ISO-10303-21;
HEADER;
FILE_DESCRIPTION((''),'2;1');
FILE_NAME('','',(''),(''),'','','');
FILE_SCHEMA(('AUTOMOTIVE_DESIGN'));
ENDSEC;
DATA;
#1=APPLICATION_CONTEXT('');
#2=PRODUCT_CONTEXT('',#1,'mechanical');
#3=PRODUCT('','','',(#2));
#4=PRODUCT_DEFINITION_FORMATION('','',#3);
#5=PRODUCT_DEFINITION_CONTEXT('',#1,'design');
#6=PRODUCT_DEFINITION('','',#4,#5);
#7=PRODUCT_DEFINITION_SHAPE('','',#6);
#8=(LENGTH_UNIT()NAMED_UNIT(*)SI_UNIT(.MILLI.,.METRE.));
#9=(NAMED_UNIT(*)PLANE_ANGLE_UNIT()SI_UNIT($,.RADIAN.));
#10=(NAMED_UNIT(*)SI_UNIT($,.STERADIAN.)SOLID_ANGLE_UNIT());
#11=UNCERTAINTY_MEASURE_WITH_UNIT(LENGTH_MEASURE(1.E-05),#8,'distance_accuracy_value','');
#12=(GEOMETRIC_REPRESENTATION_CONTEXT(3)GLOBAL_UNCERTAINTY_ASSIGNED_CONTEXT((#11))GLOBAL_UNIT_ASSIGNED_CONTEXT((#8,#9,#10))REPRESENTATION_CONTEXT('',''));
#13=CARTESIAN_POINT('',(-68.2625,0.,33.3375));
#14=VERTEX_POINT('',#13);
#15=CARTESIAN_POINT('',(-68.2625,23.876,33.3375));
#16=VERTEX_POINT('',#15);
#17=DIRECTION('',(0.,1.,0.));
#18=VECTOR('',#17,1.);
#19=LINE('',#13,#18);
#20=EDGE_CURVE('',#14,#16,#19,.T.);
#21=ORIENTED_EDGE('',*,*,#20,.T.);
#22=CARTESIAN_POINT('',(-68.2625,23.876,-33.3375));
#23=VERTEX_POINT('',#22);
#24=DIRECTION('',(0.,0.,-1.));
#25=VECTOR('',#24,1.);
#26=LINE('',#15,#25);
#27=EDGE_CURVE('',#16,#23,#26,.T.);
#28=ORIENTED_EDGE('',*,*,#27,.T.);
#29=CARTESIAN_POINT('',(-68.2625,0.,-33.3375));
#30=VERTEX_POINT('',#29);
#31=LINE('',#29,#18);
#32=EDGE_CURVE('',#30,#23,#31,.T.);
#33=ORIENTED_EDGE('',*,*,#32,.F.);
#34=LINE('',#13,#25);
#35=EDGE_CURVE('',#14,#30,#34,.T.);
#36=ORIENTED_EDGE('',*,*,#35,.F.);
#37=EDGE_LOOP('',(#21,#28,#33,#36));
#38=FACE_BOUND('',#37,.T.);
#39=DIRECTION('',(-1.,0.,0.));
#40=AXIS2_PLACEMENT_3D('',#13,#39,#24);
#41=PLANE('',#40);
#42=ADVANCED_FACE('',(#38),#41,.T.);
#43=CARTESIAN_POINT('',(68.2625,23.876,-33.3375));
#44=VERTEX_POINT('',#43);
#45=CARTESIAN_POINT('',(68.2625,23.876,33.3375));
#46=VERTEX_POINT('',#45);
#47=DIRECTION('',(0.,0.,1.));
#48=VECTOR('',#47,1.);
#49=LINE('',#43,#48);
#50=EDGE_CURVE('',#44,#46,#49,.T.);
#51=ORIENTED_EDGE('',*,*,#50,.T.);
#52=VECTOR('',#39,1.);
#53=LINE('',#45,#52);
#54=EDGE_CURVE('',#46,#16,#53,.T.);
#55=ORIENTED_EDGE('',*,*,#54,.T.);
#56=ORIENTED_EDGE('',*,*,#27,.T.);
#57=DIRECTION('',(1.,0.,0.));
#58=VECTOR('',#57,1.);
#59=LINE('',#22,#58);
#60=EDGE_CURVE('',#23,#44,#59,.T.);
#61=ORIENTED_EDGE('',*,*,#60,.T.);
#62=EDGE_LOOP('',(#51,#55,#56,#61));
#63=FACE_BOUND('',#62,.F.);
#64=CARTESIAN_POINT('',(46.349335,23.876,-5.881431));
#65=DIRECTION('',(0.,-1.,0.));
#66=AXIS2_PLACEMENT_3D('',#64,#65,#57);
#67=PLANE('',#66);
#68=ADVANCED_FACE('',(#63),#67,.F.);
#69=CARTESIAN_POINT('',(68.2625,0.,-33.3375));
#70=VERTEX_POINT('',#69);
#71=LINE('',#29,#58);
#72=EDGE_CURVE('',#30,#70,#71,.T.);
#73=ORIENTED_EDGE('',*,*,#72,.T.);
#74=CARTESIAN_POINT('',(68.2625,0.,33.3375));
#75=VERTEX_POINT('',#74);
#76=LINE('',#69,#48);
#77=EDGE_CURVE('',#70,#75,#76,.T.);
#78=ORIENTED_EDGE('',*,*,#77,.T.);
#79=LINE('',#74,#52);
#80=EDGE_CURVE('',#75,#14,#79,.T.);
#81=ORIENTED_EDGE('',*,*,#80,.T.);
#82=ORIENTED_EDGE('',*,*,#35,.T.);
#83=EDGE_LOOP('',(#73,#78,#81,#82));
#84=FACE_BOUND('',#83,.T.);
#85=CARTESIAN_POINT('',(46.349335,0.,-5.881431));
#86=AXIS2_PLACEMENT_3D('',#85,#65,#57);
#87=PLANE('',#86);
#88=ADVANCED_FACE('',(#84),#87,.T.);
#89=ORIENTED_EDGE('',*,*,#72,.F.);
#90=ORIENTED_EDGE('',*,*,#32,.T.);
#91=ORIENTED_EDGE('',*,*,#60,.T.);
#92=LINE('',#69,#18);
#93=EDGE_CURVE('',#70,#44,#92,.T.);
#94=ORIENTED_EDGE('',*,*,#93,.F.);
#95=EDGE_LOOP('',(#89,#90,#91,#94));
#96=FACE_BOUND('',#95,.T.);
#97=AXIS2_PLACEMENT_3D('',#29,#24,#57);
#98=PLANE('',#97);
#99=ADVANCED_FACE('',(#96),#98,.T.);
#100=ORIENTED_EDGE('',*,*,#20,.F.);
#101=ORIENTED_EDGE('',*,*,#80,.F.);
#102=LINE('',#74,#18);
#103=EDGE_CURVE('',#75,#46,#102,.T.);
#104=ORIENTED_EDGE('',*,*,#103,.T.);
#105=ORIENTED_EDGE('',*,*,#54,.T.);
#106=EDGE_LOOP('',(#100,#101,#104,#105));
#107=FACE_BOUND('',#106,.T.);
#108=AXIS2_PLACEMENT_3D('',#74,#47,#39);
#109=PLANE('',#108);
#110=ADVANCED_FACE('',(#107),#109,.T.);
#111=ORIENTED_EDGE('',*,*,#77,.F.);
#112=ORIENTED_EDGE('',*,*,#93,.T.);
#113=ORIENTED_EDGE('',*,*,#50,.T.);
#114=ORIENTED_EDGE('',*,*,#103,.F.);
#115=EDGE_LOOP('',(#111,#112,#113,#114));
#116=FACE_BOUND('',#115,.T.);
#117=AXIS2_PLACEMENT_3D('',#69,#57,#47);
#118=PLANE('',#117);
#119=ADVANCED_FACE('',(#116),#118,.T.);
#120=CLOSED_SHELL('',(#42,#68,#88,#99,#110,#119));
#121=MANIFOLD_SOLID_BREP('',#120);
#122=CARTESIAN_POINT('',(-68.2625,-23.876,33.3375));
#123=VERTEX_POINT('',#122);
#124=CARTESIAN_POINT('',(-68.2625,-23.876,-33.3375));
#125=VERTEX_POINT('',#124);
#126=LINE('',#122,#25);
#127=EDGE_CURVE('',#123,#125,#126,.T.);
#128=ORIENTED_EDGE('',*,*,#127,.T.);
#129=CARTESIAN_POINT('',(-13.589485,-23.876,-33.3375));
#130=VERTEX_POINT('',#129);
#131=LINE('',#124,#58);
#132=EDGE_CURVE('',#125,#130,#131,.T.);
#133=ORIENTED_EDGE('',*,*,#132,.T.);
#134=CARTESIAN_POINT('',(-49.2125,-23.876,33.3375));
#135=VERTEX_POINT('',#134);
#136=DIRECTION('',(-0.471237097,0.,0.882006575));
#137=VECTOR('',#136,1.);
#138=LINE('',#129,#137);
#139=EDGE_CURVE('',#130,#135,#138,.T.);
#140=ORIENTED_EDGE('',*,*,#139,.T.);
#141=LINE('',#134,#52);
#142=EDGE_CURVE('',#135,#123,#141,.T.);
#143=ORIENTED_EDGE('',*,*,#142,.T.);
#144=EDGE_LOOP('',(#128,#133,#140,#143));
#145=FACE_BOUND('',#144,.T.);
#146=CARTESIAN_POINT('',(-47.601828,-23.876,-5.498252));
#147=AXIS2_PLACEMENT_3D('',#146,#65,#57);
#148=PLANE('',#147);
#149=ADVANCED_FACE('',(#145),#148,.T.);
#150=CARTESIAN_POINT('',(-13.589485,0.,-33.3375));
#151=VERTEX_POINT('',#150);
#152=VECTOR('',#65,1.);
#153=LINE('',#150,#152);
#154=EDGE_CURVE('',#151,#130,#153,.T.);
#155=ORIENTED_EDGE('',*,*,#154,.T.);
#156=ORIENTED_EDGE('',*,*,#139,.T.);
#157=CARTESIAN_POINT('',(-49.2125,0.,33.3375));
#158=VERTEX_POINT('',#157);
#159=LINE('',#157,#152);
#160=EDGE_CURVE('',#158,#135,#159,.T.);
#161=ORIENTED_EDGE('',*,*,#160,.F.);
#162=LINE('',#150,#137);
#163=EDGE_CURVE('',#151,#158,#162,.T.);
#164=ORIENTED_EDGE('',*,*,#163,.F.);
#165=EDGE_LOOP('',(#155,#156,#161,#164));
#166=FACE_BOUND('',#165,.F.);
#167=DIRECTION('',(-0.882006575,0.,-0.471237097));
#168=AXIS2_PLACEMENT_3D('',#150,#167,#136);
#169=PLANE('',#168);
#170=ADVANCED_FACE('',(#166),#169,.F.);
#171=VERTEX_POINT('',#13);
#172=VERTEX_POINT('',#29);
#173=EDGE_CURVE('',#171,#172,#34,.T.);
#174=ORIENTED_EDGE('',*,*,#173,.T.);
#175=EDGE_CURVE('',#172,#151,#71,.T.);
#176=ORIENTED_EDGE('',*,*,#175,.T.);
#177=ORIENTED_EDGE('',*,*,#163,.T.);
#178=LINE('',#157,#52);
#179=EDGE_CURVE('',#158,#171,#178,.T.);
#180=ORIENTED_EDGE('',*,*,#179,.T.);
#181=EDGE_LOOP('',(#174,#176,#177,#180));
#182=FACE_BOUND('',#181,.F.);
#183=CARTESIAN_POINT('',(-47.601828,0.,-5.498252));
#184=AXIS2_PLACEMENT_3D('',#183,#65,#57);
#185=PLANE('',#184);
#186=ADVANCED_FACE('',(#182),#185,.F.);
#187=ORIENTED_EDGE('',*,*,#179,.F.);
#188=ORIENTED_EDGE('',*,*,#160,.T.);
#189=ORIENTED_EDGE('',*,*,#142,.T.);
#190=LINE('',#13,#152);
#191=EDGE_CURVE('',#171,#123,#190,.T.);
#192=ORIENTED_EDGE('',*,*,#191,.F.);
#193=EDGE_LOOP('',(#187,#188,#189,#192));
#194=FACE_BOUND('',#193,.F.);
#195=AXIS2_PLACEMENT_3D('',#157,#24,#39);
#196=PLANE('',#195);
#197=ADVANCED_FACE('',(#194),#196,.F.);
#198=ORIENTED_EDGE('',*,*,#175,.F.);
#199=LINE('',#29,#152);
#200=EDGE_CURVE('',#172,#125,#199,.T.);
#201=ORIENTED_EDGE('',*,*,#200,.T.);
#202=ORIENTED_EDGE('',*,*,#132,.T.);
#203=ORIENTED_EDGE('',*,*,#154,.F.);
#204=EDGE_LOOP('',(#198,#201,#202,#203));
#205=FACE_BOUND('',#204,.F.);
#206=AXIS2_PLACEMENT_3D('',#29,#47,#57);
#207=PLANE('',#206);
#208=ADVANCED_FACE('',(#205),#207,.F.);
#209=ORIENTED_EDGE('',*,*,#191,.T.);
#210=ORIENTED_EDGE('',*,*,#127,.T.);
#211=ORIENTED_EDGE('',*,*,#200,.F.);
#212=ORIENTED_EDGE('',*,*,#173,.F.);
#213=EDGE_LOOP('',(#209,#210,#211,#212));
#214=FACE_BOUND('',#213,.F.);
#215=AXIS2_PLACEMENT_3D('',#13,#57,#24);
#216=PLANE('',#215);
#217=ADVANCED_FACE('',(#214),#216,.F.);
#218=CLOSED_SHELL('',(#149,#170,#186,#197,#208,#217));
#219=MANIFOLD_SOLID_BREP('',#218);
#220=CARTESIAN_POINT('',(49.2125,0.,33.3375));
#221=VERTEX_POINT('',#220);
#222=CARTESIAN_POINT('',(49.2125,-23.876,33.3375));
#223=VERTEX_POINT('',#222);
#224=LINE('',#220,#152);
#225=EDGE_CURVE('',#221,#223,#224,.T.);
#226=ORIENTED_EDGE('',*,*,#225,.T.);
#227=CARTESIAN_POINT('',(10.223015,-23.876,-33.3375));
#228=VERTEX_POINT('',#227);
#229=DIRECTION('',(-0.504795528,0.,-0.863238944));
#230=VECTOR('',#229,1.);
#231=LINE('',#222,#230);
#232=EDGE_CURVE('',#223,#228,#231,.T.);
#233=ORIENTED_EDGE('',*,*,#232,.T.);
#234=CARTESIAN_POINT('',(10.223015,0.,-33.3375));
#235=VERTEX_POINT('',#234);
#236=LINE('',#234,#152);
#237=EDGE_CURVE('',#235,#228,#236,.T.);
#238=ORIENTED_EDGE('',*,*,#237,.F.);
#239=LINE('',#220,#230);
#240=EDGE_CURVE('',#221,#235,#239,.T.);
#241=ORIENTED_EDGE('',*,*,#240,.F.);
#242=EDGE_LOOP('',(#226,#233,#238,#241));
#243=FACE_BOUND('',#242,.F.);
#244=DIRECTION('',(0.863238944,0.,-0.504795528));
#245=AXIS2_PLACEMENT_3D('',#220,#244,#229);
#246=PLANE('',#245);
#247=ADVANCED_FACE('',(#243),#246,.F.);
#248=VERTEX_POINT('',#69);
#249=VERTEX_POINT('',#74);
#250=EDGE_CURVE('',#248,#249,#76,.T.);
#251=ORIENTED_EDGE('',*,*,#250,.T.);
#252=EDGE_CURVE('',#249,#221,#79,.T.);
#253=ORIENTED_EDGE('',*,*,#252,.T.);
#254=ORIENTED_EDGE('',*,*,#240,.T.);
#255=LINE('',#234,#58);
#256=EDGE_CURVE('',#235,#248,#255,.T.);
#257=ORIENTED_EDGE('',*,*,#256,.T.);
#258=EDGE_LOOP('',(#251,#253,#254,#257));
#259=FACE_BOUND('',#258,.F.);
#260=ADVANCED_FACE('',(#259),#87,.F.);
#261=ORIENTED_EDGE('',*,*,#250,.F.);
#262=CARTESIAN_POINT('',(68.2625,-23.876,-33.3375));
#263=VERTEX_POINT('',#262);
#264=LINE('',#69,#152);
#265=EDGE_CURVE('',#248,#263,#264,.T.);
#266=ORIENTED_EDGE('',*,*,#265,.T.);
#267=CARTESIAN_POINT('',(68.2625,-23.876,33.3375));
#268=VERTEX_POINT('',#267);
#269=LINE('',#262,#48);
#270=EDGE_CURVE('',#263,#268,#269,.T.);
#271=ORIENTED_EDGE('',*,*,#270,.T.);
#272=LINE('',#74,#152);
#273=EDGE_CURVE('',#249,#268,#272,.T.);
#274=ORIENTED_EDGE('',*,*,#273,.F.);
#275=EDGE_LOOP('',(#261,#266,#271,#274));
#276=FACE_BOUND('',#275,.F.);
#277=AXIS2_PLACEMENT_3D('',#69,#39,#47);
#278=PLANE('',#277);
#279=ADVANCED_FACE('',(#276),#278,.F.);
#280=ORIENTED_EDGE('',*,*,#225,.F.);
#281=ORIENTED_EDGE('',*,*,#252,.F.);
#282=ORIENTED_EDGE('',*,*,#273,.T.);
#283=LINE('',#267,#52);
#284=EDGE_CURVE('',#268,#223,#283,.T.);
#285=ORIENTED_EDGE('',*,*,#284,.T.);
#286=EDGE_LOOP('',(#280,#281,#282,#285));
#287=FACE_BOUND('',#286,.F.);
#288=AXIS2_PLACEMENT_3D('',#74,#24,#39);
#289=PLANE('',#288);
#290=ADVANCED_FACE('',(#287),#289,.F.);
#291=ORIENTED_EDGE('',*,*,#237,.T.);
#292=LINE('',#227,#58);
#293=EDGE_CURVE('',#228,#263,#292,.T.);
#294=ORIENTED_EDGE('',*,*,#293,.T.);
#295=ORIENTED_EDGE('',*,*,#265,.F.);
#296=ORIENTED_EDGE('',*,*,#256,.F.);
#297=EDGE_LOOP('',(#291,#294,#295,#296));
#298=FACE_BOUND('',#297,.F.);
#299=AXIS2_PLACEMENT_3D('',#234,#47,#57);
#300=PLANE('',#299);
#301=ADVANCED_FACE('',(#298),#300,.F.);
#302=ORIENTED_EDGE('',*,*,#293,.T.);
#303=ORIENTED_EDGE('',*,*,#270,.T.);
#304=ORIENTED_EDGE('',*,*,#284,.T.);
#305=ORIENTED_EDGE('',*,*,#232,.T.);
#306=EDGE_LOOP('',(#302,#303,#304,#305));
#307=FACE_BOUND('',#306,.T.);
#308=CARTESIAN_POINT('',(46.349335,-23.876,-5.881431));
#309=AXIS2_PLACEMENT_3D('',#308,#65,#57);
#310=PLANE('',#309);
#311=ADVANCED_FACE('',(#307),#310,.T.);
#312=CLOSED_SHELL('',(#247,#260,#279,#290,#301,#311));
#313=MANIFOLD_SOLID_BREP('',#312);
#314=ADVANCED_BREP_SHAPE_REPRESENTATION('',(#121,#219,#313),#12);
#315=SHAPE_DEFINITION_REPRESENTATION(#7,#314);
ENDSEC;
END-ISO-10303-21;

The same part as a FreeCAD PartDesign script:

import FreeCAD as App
import Part
import Sketcher

V = App.Vector
Q = App.Units.Quantity


def add_polygon(sketch, points):
    """Adds a closed chain of lines whose ends are joined by coincident constraints."""
    first, n = sketch.GeometryCount, len(points)
    for a, b in zip(points, points[1:] + points[:1]):
        sketch.addGeometry(Part.LineSegment(App.Vector(*a, 0), App.Vector(*b, 0)), False)
    for i in range(n):
        sketch.addConstraint(Sketcher.Constraint("Coincident", first + i, 2, first + (i + 1) % n, 1))

doc = App.newDocument("Part")
body = doc.addObject("PartDesign::Body", "Body")
body.AllowCompound = True

# Sketch on XZ plane
sketch1 = body.newObject("Sketcher::SketchObject", "Sketch")
sketch1.AttachmentSupport = (doc.getObject("XZ_Plane"), [""])
sketch1.MapMode = "FlatFace"
add_polygon(sketch1, [(-13.589485, -33.3375), (-49.2125, 33.3375), (-68.2625, 33.3375), (-68.2625, -33.3375)])  # lines 0-3
add_polygon(sketch1, [(68.2625, 33.3375), (49.2125, 33.3375), (10.223015, -33.3375), (68.2625, -33.3375)])  # lines 4-7
sketch1.addConstraint(Sketcher.Constraint("Horizontal", 1))
sketch1.addConstraint(Sketcher.Constraint("Vertical", 2))
sketch1.addConstraint(Sketcher.Constraint("Horizontal", 3))
sketch1.addConstraint(Sketcher.Constraint("Horizontal", 4))
sketch1.addConstraint(Sketcher.Constraint("Horizontal", 6))
sketch1.addConstraint(Sketcher.Constraint("Vertical", 7))
sketch1.addConstraint(Sketcher.Constraint("Symmetric", 1, 2, 6, 2, -1, 1))
sketch1.addConstraint(Sketcher.Constraint("Symmetric", 0, 2, 4, 2, -2))
sketch1.addConstraint(Sketcher.Constraint("Horizontal", 3, 2, 5, 2))
sketch1.addConstraint(Sketcher.Constraint("DistanceX", 1, 2, 1, 1, Q("0.75 in")))
sketch1.addConstraint(Sketcher.Constraint("DistanceY", 2, 2, 2, 1, Q("2.625 in")))
sketch1.addConstraint(Sketcher.Constraint("DistanceX", 0, 2, -1, 1, Q("1.9375 in")))
sketch1.addConstraint(Sketcher.Constraint("DistanceX", 3, 2, 5, 2, Q("0.9375 in")))
sketch1.addConstraint(Sketcher.Constraint("DistanceX", 3, 1, 3, 2, Q("54.673015 mm")))
pad1 = body.newObject("PartDesign::Pad", "Pad")
pad1.Profile = sketch1
pad1.Length = Q("0.94 in")
body2 = doc.addObject("PartDesign::Body", "Body001")

# Sketch on XZ plane
sketch2 = body2.newObject("Sketcher::SketchObject", "Sketch001")
sketch2.AttachmentSupport = (doc.getObject("XZ_Plane001"), [""])
sketch2.MapMode = "FlatFace"
add_polygon(sketch2, [(68.2625, 33.3375), (-68.2625, 33.3375), (-68.2625, -33.3375), (68.2625, -33.3375)])  # lines 0-3
sketch2.addConstraint(Sketcher.Constraint("Horizontal", 0))
sketch2.addConstraint(Sketcher.Constraint("Vertical", 1))
sketch2.addConstraint(Sketcher.Constraint("Horizontal", 2))
sketch2.addConstraint(Sketcher.Constraint("Vertical", 3))
sketch2.addConstraint(Sketcher.Constraint("Symmetric", 0, 2, 2, 2, -1, 1))
sketch2.addConstraint(Sketcher.Constraint("DistanceX", 0, 2, 0, 1, Q("5.375 in")))
sketch2.addConstraint(Sketcher.Constraint("DistanceY", 1, 2, 1, 1, Q("2.625 in")))
pad2 = body2.newObject("PartDesign::Pad", "Pad001")
pad2.Profile = sketch2
pad2.Length = Q("0.94 in")
pad2.Reversed = True

doc.recompute()
